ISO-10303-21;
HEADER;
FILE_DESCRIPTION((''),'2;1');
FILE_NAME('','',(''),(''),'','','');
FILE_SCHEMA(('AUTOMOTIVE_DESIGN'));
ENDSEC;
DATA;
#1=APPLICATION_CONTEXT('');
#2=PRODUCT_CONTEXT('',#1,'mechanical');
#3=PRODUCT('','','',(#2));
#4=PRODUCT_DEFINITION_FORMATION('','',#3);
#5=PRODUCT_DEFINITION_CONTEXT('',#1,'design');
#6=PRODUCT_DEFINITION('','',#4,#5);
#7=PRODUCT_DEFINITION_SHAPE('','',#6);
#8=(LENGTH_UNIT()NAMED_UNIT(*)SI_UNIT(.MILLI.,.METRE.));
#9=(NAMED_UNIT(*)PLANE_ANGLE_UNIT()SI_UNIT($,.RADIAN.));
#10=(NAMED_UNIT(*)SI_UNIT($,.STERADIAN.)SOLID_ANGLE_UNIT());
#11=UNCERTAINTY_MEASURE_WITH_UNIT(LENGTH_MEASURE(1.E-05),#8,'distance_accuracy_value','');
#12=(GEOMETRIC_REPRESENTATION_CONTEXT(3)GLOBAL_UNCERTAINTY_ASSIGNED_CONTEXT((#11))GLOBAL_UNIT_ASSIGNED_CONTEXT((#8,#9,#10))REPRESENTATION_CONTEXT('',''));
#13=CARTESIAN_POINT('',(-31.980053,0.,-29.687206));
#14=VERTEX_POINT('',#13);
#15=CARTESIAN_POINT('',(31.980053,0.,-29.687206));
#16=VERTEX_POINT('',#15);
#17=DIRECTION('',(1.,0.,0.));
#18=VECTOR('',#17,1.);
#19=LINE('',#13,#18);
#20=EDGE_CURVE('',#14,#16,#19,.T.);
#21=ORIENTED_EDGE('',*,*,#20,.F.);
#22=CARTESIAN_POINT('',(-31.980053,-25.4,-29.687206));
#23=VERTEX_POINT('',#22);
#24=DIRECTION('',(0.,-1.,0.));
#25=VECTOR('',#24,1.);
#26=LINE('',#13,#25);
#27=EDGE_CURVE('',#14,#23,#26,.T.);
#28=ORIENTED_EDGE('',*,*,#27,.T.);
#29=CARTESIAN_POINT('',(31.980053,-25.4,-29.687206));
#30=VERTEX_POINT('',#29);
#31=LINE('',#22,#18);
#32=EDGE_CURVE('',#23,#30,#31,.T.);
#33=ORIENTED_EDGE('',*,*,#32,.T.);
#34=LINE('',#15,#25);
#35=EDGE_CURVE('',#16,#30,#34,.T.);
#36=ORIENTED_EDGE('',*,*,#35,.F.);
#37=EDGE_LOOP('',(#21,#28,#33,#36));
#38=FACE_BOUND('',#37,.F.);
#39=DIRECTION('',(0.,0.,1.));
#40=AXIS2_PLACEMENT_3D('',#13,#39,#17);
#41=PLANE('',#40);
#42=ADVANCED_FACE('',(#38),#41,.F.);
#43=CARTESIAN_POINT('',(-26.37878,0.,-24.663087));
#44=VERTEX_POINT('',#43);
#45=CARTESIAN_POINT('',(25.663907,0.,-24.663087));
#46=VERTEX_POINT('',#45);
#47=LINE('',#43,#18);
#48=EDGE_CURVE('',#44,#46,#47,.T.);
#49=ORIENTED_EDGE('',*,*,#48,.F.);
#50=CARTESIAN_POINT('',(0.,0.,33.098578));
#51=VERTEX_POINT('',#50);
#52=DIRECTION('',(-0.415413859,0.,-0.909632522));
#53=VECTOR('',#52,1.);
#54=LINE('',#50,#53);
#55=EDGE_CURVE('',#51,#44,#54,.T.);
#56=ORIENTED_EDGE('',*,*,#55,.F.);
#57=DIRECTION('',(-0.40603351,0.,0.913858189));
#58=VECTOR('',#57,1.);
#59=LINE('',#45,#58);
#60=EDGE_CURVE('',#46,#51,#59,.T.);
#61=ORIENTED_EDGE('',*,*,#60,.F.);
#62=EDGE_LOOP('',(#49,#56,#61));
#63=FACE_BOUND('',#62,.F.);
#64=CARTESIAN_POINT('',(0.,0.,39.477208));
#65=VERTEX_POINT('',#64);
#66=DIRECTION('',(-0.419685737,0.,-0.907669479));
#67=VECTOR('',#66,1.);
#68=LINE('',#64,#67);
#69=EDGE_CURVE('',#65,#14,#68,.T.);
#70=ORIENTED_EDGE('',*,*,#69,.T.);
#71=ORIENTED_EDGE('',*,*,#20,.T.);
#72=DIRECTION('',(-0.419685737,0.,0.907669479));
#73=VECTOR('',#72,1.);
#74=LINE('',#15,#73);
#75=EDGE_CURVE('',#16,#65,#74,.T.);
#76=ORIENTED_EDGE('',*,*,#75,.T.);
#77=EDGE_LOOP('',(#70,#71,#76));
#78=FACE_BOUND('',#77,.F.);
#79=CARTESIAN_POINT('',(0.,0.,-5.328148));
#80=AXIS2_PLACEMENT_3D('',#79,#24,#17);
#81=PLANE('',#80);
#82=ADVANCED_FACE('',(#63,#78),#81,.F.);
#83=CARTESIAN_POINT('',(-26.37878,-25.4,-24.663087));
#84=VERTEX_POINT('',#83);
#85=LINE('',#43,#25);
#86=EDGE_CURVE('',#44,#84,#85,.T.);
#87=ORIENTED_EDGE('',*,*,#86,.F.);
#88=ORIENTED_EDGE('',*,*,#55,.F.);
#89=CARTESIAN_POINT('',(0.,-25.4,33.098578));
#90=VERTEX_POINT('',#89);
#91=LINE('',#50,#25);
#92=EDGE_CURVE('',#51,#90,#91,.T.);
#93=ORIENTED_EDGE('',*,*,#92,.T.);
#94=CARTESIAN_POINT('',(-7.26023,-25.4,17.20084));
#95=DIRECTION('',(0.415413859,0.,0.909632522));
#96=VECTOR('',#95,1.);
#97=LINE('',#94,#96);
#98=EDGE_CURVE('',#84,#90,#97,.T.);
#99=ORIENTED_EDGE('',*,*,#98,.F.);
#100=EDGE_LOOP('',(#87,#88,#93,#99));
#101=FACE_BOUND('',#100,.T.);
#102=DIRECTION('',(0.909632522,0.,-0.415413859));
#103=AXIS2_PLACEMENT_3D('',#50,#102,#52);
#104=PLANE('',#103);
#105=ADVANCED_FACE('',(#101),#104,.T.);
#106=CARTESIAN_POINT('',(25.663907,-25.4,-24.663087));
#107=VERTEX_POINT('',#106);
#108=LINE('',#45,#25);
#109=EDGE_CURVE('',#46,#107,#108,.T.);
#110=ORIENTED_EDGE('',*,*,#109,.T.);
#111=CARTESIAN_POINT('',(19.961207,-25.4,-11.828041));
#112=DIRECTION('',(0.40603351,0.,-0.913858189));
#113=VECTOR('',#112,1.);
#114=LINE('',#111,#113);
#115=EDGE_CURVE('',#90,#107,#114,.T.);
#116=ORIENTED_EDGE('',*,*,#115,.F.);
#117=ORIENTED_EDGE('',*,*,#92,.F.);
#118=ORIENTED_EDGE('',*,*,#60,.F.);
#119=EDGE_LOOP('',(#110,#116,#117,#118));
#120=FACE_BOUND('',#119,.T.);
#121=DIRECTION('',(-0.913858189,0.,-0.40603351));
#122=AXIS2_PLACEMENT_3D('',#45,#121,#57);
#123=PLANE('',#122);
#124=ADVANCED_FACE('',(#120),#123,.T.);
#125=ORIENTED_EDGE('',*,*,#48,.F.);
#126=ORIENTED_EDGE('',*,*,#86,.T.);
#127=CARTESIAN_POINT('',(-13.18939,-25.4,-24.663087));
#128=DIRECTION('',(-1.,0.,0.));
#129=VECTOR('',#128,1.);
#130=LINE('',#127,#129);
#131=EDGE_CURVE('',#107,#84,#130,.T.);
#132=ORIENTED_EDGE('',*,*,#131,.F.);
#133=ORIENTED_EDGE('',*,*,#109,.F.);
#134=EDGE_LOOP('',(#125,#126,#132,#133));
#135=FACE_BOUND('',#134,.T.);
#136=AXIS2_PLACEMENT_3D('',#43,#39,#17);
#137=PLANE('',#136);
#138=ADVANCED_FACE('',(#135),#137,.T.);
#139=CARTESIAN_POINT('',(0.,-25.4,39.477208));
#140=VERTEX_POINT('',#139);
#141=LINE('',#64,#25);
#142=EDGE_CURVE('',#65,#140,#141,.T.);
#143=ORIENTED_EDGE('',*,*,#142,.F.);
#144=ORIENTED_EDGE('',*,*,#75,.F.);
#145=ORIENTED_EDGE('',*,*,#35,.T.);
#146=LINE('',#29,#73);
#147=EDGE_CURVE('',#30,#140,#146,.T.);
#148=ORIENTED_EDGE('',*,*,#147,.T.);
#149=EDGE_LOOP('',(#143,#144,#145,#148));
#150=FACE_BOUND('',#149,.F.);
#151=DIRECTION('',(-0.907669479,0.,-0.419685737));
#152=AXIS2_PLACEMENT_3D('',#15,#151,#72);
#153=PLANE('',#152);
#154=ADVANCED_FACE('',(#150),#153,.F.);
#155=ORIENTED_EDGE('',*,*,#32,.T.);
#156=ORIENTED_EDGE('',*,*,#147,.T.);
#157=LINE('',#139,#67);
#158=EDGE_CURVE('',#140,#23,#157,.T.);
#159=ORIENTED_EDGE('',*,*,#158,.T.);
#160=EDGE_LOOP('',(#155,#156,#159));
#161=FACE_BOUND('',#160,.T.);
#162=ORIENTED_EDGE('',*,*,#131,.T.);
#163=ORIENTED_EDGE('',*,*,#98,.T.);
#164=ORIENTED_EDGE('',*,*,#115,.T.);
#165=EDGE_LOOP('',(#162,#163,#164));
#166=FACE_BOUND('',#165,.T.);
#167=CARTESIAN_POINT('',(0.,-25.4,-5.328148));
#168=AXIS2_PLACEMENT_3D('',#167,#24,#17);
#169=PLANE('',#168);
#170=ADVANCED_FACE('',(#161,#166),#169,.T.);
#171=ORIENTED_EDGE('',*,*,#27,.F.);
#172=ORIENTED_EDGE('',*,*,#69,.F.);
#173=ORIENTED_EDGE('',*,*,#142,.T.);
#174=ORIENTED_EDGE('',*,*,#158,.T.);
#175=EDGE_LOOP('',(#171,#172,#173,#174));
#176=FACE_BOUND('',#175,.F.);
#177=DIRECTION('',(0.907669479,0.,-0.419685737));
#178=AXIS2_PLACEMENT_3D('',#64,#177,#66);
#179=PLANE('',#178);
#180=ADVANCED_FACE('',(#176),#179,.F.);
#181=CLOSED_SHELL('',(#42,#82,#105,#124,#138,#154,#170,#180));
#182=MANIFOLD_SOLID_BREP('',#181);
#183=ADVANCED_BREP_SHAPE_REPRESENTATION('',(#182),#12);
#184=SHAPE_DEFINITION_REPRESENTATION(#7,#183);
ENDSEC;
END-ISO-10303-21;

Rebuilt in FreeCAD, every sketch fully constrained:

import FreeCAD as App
import Part
import Sketcher
Q = App.Units.Quantity


def add_polygon(sketch, points):
    """Adds a closed chain of lines whose ends are joined by coincident constraints."""
    first, n = sketch.GeometryCount, len(points)
    for a, b in zip(points, points[1:] + points[:1]):
        sketch.addGeometry(Part.LineSegment(App.Vector(*a, 0), App.Vector(*b, 0)), False)
    for i in range(n):
        sketch.addConstraint(Sketcher.Constraint("Coincident", first + i, 2, first + (i + 1) % n, 1))

doc = App.newDocument("Part")
params = doc.addObject("Spreadsheet::Sheet", "Params")
for row, (alias, value) in enumerate([
    ("sketch1_length", "3 in"),
    ("pad1_length", "1 in"),
    ("sketch2_length", "2.5 in"),
    ("pocket1_length", "2 in"),
], start=1):
    params.set(f"A{row}", alias)
    params.set(f"B{row}", "=" + value)
    params.setAlias(f"B{row}", alias)

body = doc.addObject("PartDesign::Body", "Body")

# Sketch on XZ plane
sketch1 = doc.addObject("Sketcher::SketchObject", "Sketch")
body.addObject(sketch1)
sketch1.AttachmentSupport = (doc.XZ_Plane, [""])
sketch1.MapMode = "FlatFace"
add_polygon(sketch1, [(32, -30), (0, 39), (-32, -30)])  # lines 0-2
sketch1.addConstraint([
    Sketcher.Constraint("Horizontal", 2),
    Sketcher.Constraint("PointOnObject", 0, 2, -2),
    Sketcher.Constraint("Equal", 0, 1),
    Sketcher.Constraint("Distance", 0, Q("3 in")),
    Sketcher.Constraint("DistanceX", 2, 1, 2, 2, 63.960106),
    Sketcher.Constraint("DistanceY", -1, 1, 0, 2, 39.477208),
])
sketch1.setExpression("Constraints[6]", "Params.sketch1_length")
pad1 = doc.addObject("PartDesign::Pad", "Pad")
body.addObject(pad1)
pad1.Profile = sketch1
pad1.setExpression("Length", "Params.pad1_length")

# Sketch on XZ plane
sketch2 = doc.addObject("Sketcher::SketchObject", "Sketch001")
body.addObject(sketch2)
sketch2.AttachmentSupport = (doc.XZ_Plane, [""])
sketch2.MapMode = "FlatFace"
add_polygon(sketch2, [(26, -25), (0, 33), (-26, -25)])  # lines 0-2
sketch2.addConstraint([
    Sketcher.Constraint("Horizontal", 2),
    Sketcher.Constraint("PointOnObject", 0, 2, -2),
    Sketcher.Constraint("Distance", 1, Q("2.5 in")),
    Sketcher.Constraint("DistanceX", 2, 1, 2, 2, 52.042687),
    Sketcher.Constraint("DistanceY", -1, 1, 0, 2, 33.098578),
    Sketcher.Constraint("DistanceX", 1, 2, -1, 1, 26.37878),
])
sketch2.setExpression("Constraints[5]", "Params.sketch2_length")
pocket1 = doc.addObject("PartDesign::Pocket", "Pocket")
body.addObject(pocket1)
pocket1.Profile = sketch2
pocket1.setExpression("Length", "Params.pocket1_length")
pocket1.Reversed = True

doc.recompute()
